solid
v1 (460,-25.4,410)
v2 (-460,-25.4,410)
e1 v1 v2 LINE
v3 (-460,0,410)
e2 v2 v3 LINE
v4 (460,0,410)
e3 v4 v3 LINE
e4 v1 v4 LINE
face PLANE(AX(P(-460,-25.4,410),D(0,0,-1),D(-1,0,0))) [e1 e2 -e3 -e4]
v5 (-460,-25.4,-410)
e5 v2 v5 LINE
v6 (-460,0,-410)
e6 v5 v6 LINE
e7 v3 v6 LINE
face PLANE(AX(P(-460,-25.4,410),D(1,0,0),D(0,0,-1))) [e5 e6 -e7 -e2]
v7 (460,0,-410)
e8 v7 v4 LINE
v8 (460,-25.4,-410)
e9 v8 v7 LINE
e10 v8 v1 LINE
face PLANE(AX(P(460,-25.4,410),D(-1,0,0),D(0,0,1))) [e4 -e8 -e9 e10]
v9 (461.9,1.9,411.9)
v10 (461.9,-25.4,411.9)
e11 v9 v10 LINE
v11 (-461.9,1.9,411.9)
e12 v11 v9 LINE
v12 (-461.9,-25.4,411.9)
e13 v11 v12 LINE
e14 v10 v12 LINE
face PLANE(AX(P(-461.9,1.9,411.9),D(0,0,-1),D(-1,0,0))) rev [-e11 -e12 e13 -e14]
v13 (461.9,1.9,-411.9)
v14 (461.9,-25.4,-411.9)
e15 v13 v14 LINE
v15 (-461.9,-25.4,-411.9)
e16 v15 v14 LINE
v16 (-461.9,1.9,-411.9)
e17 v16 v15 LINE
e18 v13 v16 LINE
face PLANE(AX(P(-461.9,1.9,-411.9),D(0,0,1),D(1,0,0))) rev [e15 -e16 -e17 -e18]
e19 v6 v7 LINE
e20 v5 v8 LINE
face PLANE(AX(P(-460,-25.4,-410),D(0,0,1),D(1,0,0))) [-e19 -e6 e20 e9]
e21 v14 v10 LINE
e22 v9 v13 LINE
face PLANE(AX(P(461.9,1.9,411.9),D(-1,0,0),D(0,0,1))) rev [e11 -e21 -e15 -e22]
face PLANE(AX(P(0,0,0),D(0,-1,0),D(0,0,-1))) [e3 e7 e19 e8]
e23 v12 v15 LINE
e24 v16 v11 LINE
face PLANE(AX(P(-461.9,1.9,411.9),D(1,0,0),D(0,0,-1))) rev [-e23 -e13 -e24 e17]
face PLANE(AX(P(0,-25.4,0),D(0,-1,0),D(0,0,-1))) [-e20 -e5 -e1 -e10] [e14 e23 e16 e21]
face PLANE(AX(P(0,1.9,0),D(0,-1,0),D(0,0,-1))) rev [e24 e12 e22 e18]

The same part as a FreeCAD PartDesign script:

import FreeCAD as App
import Part
import Sketcher
from FreeCAD import Vector
Q = App.Units.Quantity


def add_polygon(sketch, points):
    """Adds a closed chain of lines whose ends are joined by coincident constraints."""
    first, n = sketch.GeometryCount, len(points)
    for a, b in zip(points, points[1:] + points[:1]):
        sketch.addGeometry(Part.LineSegment(App.Vector(*a, 0), App.Vector(*b, 0)), False)
    for i in range(n):
        sketch.addConstraint(Sketcher.Constraint("Coincident", first + i, 2, first + (i + 1) % n, 1))

doc = App.newDocument("Part")
body = doc.addObject("PartDesign::Body", "Body")

sketch1 = body.newObject("Sketcher::SketchObject", "Sketch")
sketch1.AttachmentSupport = (doc.getObject("XZ_Plane"), [""])
sketch1.MapMode = "FlatFace"
add_polygon(sketch1, [(-461.9, -411.9), (-461.9, 411.9), (461.9, 411.9), (461.9, -411.9)])
sketch1.addConstraint([
    Sketcher.Constraint("Vertical", 0),
    Sketcher.Constraint("Horizontal", 1),
    Sketcher.Constraint("Vertical", 2),
    Sketcher.Constraint("Horizontal", 3),
    Sketcher.Constraint("Symmetric", 0, 2, 2, 2, -1, 1),
    Sketcher.Constraint("DistanceX", 1, 1, 1, 2, Q("923.8 mm")),
    Sketcher.Constraint("DistanceY", 0, 1, 0, 2, Q("823.8 mm")),
])
pad1 = body.newObject("PartDesign::Pad", "Pad")
pad1.Profile = sketch1
pad1.Length = 1.9
pad1.Reversed = True

sketch2 = body.newObject("Sketcher::SketchObject", "Sketch001")
sketch2.AttachmentSupport = (doc.getObject("XZ_Plane"), [""])
sketch2.MapMode = "FlatFace"
add_polygon(sketch2, [(-461.9, 411.9), (-461.9, -411.9), (461.9, -411.9), (461.9, 411.9)])
add_polygon(sketch2, [(460, -410), (-460, -410), (-460, 410), (460, 410)])
sketch2.addConstraint([
    Sketcher.Constraint("Vertical", 0),
    Sketcher.Constraint("Horizontal", 1),
    Sketcher.Constraint("Vertical", 2),
    Sketcher.Constraint("Horizontal", 3),
    Sketcher.Constraint("Horizontal", 4),
    Sketcher.Constraint("Vertical", 5),
    Sketcher.Constraint("Horizontal", 6),
    Sketcher.Constraint("Vertical", 7),
    Sketcher.Constraint("Symmetric", 0, 2, 2, 2, -1, 1),
    Sketcher.Constraint("Symmetric", 4, 2, 6, 2, -1, 1),
    Sketcher.Constraint("DistanceX", 4, 2, 4, 1, Q("920 mm")),
    Sketcher.Constraint("DistanceY", 5, 1, 5, 2, Q("820 mm")),
    Sketcher.Constraint("DistanceX", 1, 1, 1, 2, Q("923.8 mm")),
    Sketcher.Constraint("DistanceY", 0, 2, 0, 1, Q("823.8 mm")),
])
pad2 = body.newObject("PartDesign::Pad", "Pad001")
pad2.Profile = sketch2
pad2.Length = 25.4

doc.recompute()
